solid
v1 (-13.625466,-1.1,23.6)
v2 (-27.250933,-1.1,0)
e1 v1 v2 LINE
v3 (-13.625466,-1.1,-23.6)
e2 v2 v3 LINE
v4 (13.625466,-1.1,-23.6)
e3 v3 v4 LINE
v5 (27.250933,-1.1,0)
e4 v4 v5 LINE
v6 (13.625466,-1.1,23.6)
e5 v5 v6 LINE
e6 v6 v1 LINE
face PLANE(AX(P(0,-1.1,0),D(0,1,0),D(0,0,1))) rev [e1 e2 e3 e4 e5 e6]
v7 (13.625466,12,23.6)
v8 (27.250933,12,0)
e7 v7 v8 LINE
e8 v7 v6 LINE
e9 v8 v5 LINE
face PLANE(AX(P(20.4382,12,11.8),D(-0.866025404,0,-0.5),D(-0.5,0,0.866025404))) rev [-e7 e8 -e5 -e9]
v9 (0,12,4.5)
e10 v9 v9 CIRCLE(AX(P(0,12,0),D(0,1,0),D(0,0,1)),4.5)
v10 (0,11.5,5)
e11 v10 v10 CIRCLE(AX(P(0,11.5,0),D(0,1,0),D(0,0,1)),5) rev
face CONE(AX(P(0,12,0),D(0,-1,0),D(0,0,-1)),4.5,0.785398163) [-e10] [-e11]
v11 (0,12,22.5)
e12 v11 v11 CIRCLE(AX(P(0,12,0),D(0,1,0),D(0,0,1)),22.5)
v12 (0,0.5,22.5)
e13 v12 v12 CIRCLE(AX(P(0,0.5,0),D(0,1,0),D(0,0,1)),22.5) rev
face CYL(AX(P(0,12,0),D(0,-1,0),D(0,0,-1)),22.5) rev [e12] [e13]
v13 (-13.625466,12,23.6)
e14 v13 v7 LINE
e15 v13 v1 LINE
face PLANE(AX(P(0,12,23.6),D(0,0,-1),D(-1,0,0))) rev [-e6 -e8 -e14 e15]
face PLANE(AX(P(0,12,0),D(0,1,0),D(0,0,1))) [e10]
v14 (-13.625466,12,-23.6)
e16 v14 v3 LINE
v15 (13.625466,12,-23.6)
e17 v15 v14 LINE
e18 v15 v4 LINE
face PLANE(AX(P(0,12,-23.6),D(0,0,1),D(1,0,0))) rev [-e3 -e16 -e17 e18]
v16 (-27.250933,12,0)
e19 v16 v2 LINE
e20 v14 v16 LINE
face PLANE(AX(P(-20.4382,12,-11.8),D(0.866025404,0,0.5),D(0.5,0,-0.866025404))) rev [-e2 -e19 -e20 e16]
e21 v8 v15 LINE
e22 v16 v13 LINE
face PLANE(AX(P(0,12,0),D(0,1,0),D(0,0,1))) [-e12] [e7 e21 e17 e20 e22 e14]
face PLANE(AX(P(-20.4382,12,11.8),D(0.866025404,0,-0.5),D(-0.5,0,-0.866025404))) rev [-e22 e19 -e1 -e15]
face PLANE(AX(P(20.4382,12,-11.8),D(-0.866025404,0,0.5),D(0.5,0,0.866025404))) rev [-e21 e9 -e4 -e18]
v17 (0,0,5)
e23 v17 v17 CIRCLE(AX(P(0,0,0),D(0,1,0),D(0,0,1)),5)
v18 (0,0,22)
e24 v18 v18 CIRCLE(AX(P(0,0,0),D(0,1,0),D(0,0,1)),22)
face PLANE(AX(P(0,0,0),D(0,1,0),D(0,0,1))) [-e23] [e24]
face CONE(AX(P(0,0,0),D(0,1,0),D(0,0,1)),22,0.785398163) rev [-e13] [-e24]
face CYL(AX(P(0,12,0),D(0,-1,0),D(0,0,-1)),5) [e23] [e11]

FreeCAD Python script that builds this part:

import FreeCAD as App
import Part
import Sketcher
from FreeCAD import Vector
Q = App.Units.Quantity


def edges_at(feature, points):
    """Names of the edges that pass closest to the given points."""
    edges = feature.Shape.Edges
    near = lambda p: min(range(len(edges)), key=lambda i: edges[i].distToShape(Part.Vertex(*p))[0])
    return sorted({f"Edge{near(p) + 1}" for p in points})


def add_polygon(sketch, points):
    """Adds a closed chain of lines whose ends are joined by coincident constraints."""
    first, n = sketch.GeometryCount, len(points)
    for a, b in zip(points, points[1:] + points[:1]):
        sketch.addGeometry(Part.LineSegment(App.Vector(*a, 0), App.Vector(*b, 0)), False)
    for i in range(n):
        sketch.addConstraint(Sketcher.Constraint("Coincident", first + i, 2, first + (i + 1) % n, 1))

doc = App.newDocument("Part")
body = doc.addObject("PartDesign::Body", "Body")

sketch1 = body.newObject("Sketcher::SketchObject", "Sketch")
sketch1.AttachmentSupport = (doc.getObject("XZ_Plane"), [""])
sketch1.MapMode = "FlatFace"
add_polygon(sketch1, [(14, 24), (27, 0), (14, -24), (-14, -24), (-27, 0), (-14, 24)])
sketch1.addGeometry(Part.Circle(Vector(0, 0, 0), Vector(0, 0, 1), 22), False)
sketch1.addConstraint(Sketcher.Constraint("Horizontal", 2))
sketch1.addConstraint(Sketcher.Constraint("Horizontal", 5))
sketch1.addConstraint(Sketcher.Constraint("Coincident", 6, 3, -1, 1))
sketch1.addConstraint(Sketcher.Constraint("Symmetric", 0, 2, 3, 2, -1, 1))
sketch1.addConstraint(Sketcher.Constraint("Symmetric", 1, 2, 4, 2, -1, 1))
sketch1.addConstraint(Sketcher.Constraint("PointOnObject", 0, 2, -1))
sketch1.addConstraint(Sketcher.Constraint("Parallel", 0, 3))
sketch1.addConstraint(Sketcher.Constraint("Vertical", 2, 2, 4, 2))
sketch1.addConstraint(Sketcher.Constraint("Diameter", 6, Q("45 mm")))
sketch1.addConstraint(Sketcher.Constraint("Angle", 0, Q("-60 deg")))
sketch1.addConstraint(Sketcher.Constraint("DistanceY", 1, 2, -1, 1, Q("23.6 mm")))
sketch1.addConstraint(Sketcher.Constraint("DistanceX", 2, 2, 0, 2, Q("40.876399 mm")))
pad1 = body.newObject("PartDesign::Pad", "Pad")
pad1.Profile = sketch1
pad1.Length = 12
pad1.Reversed = True
body2 = doc.addObject("PartDesign::Body", "Body001")

sketch2 = body2.newObject("Sketcher::SketchObject", "Sketch001")
sketch2.AttachmentSupport = (doc.getObject("XZ_Plane001"), [""])
sketch2.MapMode = "FlatFace"
sketch2.addGeometry(Part.Circle(Vector(0, 0, 0), Vector(0, 0, 1), 5), False)
sketch2.addConstraint(Sketcher.Constraint("Coincident", 0, 3, -1, 1))
sketch2.addConstraint(Sketcher.Constraint("Diameter", 0, Q("10 mm")))
pad2 = body2.newObject("PartDesign::Pad", "Pad001")
pad2.Profile = sketch2
pad2.Length = 12
pad2.Reversed = True
body.AllowCompound = True
doc.recompute()

boolean = body.newObject("PartDesign::Boolean", "Boolean")
boolean.Type = "Fuse"
boolean.addObjects([body2])

sketch3 = body.newObject("Sketcher::SketchObject", "Sketch002")
sketch3.AttachmentSupport = (doc.getObject("XZ_Plane"), [""])
sketch3.MapMode = "FlatFace"
add_polygon(sketch3, [(-27, 0), (-14, -24), (14, -24), (27, 0), (14, 24), (-14, 24)])
sketch3.addConstraint(Sketcher.Constraint("Horizontal", 1))
sketch3.addConstraint(Sketcher.Constraint("Horizontal", 4))
sketch3.addConstraint(Sketcher.Constraint("Symmetric", 0, 2, 3, 2, -1, 1))
sketch3.addConstraint(Sketcher.Constraint("Symmetric", 2, 2, 5, 2, -1, 1))
sketch3.addConstraint(Sketcher.Constraint("PointOnObject", 2, 2, -1))
sketch3.addConstraint(Sketcher.Constraint("Parallel", 2, 5))
sketch3.addConstraint(Sketcher.Constraint("Vertical", 1, 2, 3, 2))
sketch3.addConstraint(Sketcher.Constraint("Angle", 0, Q("-60 deg")))
sketch3.addConstraint(Sketcher.Constraint("DistanceY", 0, 2, -1, 1, Q("23.6 mm")))
sketch3.addConstraint(Sketcher.Constraint("DistanceX", 0, 2, 2, 2, Q("40.876399 mm")))
pad3 = body.newObject("PartDesign::Pad", "Pad002")
pad3.Profile = sketch3
pad3.Length = 1.1
doc.recompute()

chamfer = body.newObject("PartDesign::Chamfer", "Chamfer")
chamfer.Base = (pad3, edges_at(pad3, [(0, 0, -22.5), (0, 12, -5)]))
chamfer.Size = 0.5

doc.recompute()
